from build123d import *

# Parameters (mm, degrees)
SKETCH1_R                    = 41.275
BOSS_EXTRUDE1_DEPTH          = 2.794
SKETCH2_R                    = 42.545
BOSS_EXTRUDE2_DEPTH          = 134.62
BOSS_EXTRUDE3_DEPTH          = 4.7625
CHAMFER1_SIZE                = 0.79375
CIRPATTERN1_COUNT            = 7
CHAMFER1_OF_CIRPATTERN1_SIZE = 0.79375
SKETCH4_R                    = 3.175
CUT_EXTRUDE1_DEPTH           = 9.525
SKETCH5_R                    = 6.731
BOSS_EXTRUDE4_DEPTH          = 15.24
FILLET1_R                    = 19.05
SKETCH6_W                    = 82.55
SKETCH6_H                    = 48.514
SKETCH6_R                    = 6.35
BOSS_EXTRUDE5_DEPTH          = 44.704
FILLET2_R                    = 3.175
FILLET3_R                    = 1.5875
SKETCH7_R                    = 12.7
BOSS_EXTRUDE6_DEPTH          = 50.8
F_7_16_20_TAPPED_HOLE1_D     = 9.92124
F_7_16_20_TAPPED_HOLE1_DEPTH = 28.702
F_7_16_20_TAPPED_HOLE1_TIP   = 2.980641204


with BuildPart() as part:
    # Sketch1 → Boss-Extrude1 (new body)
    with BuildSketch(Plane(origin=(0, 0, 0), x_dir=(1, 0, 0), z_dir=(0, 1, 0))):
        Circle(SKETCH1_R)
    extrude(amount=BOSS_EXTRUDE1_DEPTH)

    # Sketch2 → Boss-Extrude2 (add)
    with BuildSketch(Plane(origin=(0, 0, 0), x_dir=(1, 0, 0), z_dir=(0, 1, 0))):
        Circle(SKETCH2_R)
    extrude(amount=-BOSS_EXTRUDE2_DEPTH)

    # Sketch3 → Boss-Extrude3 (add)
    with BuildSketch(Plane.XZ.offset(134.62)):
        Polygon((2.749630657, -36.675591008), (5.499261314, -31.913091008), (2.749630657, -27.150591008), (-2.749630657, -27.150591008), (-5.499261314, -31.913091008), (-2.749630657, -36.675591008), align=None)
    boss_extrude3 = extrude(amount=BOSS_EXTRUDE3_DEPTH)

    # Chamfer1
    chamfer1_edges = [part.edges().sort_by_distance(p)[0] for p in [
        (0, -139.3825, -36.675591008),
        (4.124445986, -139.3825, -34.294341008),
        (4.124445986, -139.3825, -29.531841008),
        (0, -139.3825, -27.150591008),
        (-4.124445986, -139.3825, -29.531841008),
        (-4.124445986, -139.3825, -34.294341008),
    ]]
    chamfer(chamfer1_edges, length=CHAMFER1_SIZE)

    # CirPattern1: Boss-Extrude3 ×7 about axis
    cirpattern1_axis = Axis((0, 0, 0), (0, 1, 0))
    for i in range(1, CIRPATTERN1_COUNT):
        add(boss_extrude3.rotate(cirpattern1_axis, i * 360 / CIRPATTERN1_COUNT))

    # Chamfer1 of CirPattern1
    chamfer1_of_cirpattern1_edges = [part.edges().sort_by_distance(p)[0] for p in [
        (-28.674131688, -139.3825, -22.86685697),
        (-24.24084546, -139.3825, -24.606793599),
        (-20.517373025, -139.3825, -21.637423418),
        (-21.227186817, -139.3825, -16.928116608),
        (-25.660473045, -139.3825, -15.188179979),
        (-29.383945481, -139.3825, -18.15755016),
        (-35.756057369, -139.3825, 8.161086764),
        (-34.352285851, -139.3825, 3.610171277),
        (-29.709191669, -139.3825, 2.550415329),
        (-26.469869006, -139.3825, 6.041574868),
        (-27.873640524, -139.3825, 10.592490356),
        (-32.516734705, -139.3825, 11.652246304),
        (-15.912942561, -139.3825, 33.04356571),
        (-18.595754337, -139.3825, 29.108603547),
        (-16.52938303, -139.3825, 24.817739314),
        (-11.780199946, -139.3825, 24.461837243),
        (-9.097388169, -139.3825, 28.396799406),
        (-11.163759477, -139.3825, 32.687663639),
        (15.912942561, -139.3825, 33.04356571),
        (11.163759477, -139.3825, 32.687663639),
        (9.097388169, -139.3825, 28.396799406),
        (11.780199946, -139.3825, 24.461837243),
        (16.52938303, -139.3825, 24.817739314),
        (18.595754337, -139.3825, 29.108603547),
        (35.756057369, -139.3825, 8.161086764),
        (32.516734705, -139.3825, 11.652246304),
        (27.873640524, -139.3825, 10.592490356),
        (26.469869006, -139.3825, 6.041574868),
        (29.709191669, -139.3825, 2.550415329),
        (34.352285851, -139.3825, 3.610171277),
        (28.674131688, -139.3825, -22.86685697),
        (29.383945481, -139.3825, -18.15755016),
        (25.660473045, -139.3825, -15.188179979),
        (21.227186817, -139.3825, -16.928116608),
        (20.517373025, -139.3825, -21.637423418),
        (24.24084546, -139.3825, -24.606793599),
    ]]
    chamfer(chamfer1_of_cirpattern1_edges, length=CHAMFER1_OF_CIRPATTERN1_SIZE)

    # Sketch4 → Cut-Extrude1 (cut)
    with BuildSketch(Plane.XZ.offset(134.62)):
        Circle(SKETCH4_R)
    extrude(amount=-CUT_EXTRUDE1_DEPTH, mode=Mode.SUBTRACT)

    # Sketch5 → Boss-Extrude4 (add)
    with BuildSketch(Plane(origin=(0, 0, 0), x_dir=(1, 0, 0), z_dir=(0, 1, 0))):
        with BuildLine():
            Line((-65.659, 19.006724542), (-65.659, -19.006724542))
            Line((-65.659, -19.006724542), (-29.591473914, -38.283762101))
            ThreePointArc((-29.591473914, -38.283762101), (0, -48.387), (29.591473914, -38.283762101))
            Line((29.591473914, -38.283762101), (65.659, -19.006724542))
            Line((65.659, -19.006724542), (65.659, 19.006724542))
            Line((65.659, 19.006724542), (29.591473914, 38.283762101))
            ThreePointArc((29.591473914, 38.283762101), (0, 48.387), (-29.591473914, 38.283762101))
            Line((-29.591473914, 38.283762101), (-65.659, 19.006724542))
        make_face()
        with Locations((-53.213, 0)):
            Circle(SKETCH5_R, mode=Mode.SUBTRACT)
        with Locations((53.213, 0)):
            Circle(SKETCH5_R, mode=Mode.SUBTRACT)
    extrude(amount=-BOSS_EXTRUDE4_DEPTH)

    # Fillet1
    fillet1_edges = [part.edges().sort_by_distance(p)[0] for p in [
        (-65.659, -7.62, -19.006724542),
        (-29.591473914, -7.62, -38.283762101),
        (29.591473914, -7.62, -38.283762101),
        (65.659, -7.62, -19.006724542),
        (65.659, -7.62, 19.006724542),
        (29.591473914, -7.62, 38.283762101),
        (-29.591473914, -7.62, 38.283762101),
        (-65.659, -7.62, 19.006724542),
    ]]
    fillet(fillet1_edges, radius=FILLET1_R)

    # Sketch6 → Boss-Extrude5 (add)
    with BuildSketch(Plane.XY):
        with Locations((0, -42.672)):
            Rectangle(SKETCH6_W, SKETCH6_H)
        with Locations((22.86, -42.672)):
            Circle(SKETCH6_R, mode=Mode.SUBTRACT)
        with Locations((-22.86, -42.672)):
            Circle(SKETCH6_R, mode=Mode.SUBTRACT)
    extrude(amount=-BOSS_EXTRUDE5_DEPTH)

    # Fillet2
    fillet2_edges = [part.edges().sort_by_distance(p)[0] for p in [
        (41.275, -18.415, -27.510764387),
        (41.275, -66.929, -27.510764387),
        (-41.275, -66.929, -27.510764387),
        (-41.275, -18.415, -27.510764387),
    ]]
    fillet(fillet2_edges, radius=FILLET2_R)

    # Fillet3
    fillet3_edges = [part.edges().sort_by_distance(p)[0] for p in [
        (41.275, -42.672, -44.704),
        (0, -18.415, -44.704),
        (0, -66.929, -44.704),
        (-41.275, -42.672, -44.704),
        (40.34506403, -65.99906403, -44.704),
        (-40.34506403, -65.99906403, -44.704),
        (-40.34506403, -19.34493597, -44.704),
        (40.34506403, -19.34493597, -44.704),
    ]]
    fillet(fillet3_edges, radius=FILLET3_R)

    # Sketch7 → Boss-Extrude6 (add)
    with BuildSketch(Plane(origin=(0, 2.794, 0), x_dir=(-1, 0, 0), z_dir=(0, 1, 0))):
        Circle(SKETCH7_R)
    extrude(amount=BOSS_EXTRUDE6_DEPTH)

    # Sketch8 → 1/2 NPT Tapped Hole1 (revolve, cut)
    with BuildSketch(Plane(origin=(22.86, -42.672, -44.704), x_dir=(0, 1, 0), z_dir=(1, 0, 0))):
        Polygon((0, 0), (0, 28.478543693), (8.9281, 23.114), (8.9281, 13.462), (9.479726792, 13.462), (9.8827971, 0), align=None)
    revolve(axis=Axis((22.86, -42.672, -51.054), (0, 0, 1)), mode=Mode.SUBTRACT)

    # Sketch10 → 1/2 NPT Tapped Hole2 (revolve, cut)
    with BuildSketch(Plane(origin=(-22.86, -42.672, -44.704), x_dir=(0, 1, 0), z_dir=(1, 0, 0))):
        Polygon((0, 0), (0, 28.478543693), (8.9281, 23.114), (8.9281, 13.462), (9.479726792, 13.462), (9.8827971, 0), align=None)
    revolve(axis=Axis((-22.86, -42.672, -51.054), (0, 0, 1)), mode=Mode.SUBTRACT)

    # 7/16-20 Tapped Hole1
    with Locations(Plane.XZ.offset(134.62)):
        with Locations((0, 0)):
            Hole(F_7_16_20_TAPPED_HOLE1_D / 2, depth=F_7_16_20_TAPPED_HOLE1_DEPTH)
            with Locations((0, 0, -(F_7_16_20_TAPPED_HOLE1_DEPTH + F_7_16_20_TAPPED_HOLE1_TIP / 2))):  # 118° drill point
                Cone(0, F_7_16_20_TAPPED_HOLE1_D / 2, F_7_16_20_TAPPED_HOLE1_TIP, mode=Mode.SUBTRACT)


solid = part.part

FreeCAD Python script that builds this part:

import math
import FreeCAD as App
import Part
import Sketcher
from FreeCAD import Vector
Q = App.Units.Quantity


def edges_at(feature, points):
    """Names of the edges that pass closest to the given points."""
    edges = feature.Shape.Edges
    near = lambda p: min(range(len(edges)), key=lambda i: edges[i].distToShape(Part.Vertex(*p))[0])
    return sorted({f"Edge{near(p) + 1}" for p in points})


def add_polygon(sketch, points):
    """Adds a closed chain of lines whose ends are joined by coincident constraints."""
    first, n = sketch.GeometryCount, len(points)
    for a, b in zip(points, points[1:] + points[:1]):
        sketch.addGeometry(Part.LineSegment(App.Vector(*a, 0), App.Vector(*b, 0)), False)
    for i in range(n):
        sketch.addConstraint(Sketcher.Constraint("Coincident", first + i, 2, first + (i + 1) % n, 1))

doc = App.newDocument("Part")
body = doc.addObject("PartDesign::Body", "Body")

sketch1 = body.newObject("Sketcher::SketchObject", "Sketch")
sketch1.AttachmentSupport = (doc.getObject("XZ_Plane"), [""])
sketch1.MapMode = "FlatFace"
sketch1.addGeometry(Part.Circle(Vector(0, 0, 0), Vector(0, 0, 1), 41), False)
sketch1.addConstraint(Sketcher.Constraint("Coincident", 0, 3, -1, 1))
sketch1.addConstraint(Sketcher.Constraint("Diameter", 0, Q("3.25 in")))
pad1 = body.newObject("PartDesign::Pad", "Pad")
pad1.Profile = sketch1
pad1.Length = Q("0.11 in")
pad1.Reversed = True

sketch2 = body.newObject("Sketcher::SketchObject", "Sketch001")
sketch2.AttachmentSupport = (doc.getObject("XZ_Plane"), [""])
sketch2.MapMode = "FlatFace"
sketch2.addGeometry(Part.Circle(Vector(0, 0, 0), Vector(0, 0, 1), 43), False)
sketch2.addConstraint(Sketcher.Constraint("Coincident", 0, 3, -1, 1))
sketch2.addConstraint(Sketcher.Constraint("Diameter", 0, Q("3.35 in")))
pad2 = body.newObject("PartDesign::Pad", "Pad001")
pad2.Profile = sketch2
pad2.Length = Q("5.3 in")

sketch3 = body.newObject("Sketcher::SketchObject", "Sketch002")
sketch3.AttachmentSupport = (doc.getObject("XZ_Plane"), [""])
sketch3.MapMode = "FlatFace"
sketch3.AttachmentOffset = App.Placement(Vector(0, 0, 5.3 * 25.4), App.Rotation())
add_polygon(sketch3, [(3, -37), (5, -32), (3, -27), (-3, -27), (-5, -32), (-3, -37)])
sketch3.addConstraint(Sketcher.Constraint("Horizontal", 2))
sketch3.addConstraint(Sketcher.Constraint("Horizontal", 5))
sketch3.addConstraint(Sketcher.Constraint("Symmetric", 0, 2, 3, 2, -2))
sketch3.addConstraint(Sketcher.Constraint("Parallel", 0, 3))
sketch3.addConstraint(Sketcher.Constraint("Parallel", 1, 4))
sketch3.addConstraint(Sketcher.Constraint("Vertical", 2, 2, 4, 2))
sketch3.addConstraint(Sketcher.Constraint("Vertical", 1, 2, 5, 2))
sketch3.addConstraint(Sketcher.Constraint("Angle", 0, Q("60 deg")))
sketch3.addConstraint(Sketcher.Constraint("DistanceY", 0, 2, 1, 2, Q("0.1875 in")))
sketch3.addConstraint(Sketcher.Constraint("DistanceX", 2, 2, 2, 1, 5.499261))
sketch3.addConstraint(Sketcher.Constraint("DistanceY", 0, 2, -1, 1, 31.913091))
pad3 = body.newObject("PartDesign::Pad", "Pad002")
pad3.Profile = sketch3
pad3.Length = Q("0.1875 in")
doc.recompute()

chamfer = body.newObject("PartDesign::Chamfer", "Chamfer")
chamfer.Base = (pad3, edges_at(pad3, [
    (0, -139.382, -36.676),
    (4.124, -139.382, -34.294),
    (4.124, -139.382, -29.532),
    (0, -139.382, -27.151),
    (-4.124, -139.382, -29.532),
    (-4.124, -139.382, -34.294),
]))
chamfer.Size = Q("0.03125 in")
doc.recompute()

polarpattern = body.newObject("PartDesign::PolarPattern", "PolarPattern")
polarpattern.Originals = [pad3]
polarpattern.Axis = (doc.getObject("Y_Axis"), [""])
polarpattern.Angle = 360
polarpattern.Occurrences = 7
body.Tip = polarpattern
doc.recompute()

chamfer2 = body.newObject("PartDesign::Chamfer", "Chamfer001")
chamfer2.Base = (polarpattern, edges_at(polarpattern, [
    (-28.674, -139.382, -22.867),
    (-24.241, -139.382, -24.607),
    (-20.517, -139.382, -21.637),
    (-21.227, -139.382, -16.928),
    (-25.66, -139.382, -15.188),
    (-29.384, -139.382, -18.158),
    (-35.756, -139.382, 8.161),
    (-34.352, -139.382, 3.61),
    (-29.709, -139.382, 2.55),
    (-26.47, -139.382, 6.042),
    (-27.874, -139.382, 10.592),
    (-32.517, -139.382, 11.652),
    (-15.913, -139.382, 33.044),
    (-18.596, -139.382, 29.109),
    (-16.529, -139.382, 24.818),
    (-11.78, -139.382, 24.462),
    (-9.097, -139.382, 28.397),
    (-11.164, -139.382, 32.688),
    (15.913, -139.382, 33.044),
    (11.164, -139.382, 32.688),
    (9.097, -139.382, 28.397),
    (11.78, -139.382, 24.462),
    (16.529, -139.382, 24.818),
    (18.596, -139.382, 29.109),
    (35.756, -139.382, 8.161),
    (32.517, -139.382, 11.652),
    (27.874, -139.382, 10.592),
    (26.47, -139.382, 6.042),
    (29.709, -139.382, 2.55),
    (34.352, -139.382, 3.61),
    (28.674, -139.382, -22.867),
    (29.384, -139.382, -18.158),
    (25.66, -139.382, -15.188),
    (21.227, -139.382, -16.928),
    (20.517, -139.382, -21.637),
    (24.241, -139.382, -24.607),
]))
chamfer2.Size = Q("0.03125 in")

sketch4 = body.newObject("Sketcher::SketchObject", "Sketch003")
sketch4.AttachmentSupport = (doc.getObject("XZ_Plane"), [""])
sketch4.MapMode = "FlatFace"
sketch4.AttachmentOffset = App.Placement(Vector(0, 0, 5.3 * 25.4), App.Rotation())
sketch4.addGeometry(Part.Circle(Vector(0, 0, 0), Vector(0, 0, 1), 3.2), False)
sketch4.addConstraint(Sketcher.Constraint("Coincident", 0, 3, -1, 1))
sketch4.addConstraint(Sketcher.Constraint("Diameter", 0, Q("0.25 in")))
pocket1 = body.newObject("PartDesign::Pocket", "Pocket")
pocket1.Profile = sketch4
pocket1.Length = Q("0.375 in")

sketch5 = body.newObject("Sketcher::SketchObject", "Sketch004")
sketch5.AttachmentSupport = (doc.getObject("XZ_Plane"), [""])
sketch5.MapMode = "FlatFace"
sketch5.addGeometry(Part.LineSegment(Vector(-66, -19, 0), Vector(-66, 19, 0)), False)
sketch5.addGeometry(Part.LineSegment(Vector(-66, 19, 0), Vector(-30, 38, 0)), False)
sketch5.addGeometry(Part.ArcOfCircle(Part.Circle(Vector(0, 0, 0), Vector(0, 0, 1), 48), math.radians(52), math.radians(128)), False)
sketch5.addGeometry(Part.LineSegment(Vector(30, 38, 0), Vector(66, 19, 0)), False)
sketch5.addGeometry(Part.LineSegment(Vector(66, 19, 0), Vector(66, -19, 0)), False)
sketch5.addGeometry(Part.LineSegment(Vector(66, -19, 0), Vector(30, -38, 0)), False)
sketch5.addGeometry(Part.ArcOfCircle(Part.Circle(Vector(0, 0, 0), Vector(0, 0, 1), 48), math.radians(-128), math.radians(-52)), False)
sketch5.addGeometry(Part.LineSegment(Vector(-30, -38, 0), Vector(-66, -19, 0)), False)
sketch5.addGeometry(Part.Circle(Vector(-53, 0, 0), Vector(0, 0, 1), 7), False)
sketch5.addGeometry(Part.Circle(Vector(53, 0, 0), Vector(0, 0, 1), 7), False)
sketch5.addConstraint(Sketcher.Constraint("Coincident", 0, 2, 1, 1))
sketch5.addConstraint(Sketcher.Constraint("Coincident", 1, 2, 2, 2))
sketch5.addConstraint(Sketcher.Constraint("Coincident", 2, 1, 3, 1))
sketch5.addConstraint(Sketcher.Constraint("Coincident", 3, 2, 4, 1))
sketch5.addConstraint(Sketcher.Constraint("Coincident", 4, 2, 5, 1))
sketch5.addConstraint(Sketcher.Constraint("Coincident", 5, 2, 6, 2))
sketch5.addConstraint(Sketcher.Constraint("Coincident", 6, 1, 7, 1))
sketch5.addConstraint(Sketcher.Constraint("Coincident", 7, 2, 0, 1))
sketch5.addConstraint(Sketcher.Constraint("Vertical", 0))
sketch5.addConstraint(Sketcher.Constraint("Vertical", 4))
sketch5.addConstraint(Sketcher.Constraint("Coincident", 2, 3, -1, 1))
sketch5.addConstraint(Sketcher.Constraint("Coincident", 6, 3, -1, 1))
sketch5.addConstraint(Sketcher.Constraint("Equal", 2, 6))
sketch5.addConstraint(Sketcher.Constraint("Equal", 8, 9))
sketch5.addConstraint(Sketcher.Constraint("Symmetric", 8, 3, 9, 3, -1, 1))
sketch5.addConstraint(Sketcher.Constraint("Symmetric", 0, 2, 4, 2, -1, 1))
sketch5.addConstraint(Sketcher.Constraint("PointOnObject", 8, 3, -1))
sketch5.addConstraint(Sketcher.Constraint("Parallel", 1, 5))
sketch5.addConstraint(Sketcher.Constraint("Parallel", 3, 7))
sketch5.addConstraint(Sketcher.Constraint("Horizontal", 1, 2, 2, 1))
sketch5.addConstraint(Sketcher.Constraint("Horizontal", 0, 2, 3, 2))
sketch5.addConstraint(Sketcher.Constraint("Horizontal", 5, 2, 6, 1))
sketch5.addConstraint(Sketcher.Constraint("Diameter", 8, Q("0.53 in")))
sketch5.addConstraint(Sketcher.Constraint("Radius", 2, Q("1.905 in")))
sketch5.addConstraint(Sketcher.Constraint("DistanceX", 8, 3, 9, 3, Q("4.19 in")))
sketch5.addConstraint(Sketcher.Constraint("DistanceX", 0, 2, 8, 3, Q("0.49 in")))
sketch5.addConstraint(Sketcher.Constraint("DistanceY", 0, 1, 0, 2, 38.013449))
sketch5.addConstraint(Sketcher.Constraint("Distance", 1, 40.895851))
pad4 = body.newObject("PartDesign::Pad", "Pad003")
pad4.Profile = sketch5
pad4.Length = Q("0.6 in")
doc.recompute()

fillet = body.newObject("PartDesign::Fillet", "Fillet")
fillet.Base = (pad4, edges_at(pad4, [
    (-65.659, -7.62, -19.007),
    (-29.591, -7.62, -38.284),
    (29.591, -7.62, -38.284),
    (65.659, -7.62, -19.007),
    (65.659, -7.62, 19.007),
    (29.591, -7.62, 38.284),
    (-29.591, -7.62, 38.284),
    (-65.659, -7.62, 19.007),
]))
fillet.Radius = Q("0.75 in")

sketch6 = body.newObject("Sketcher::SketchObject", "Sketch005")
sketch6.AttachmentSupport = (doc.getObject("XY_Plane"), [""])
sketch6.MapMode = "FlatFace"
add_polygon(sketch6, [(-41, -18), (-41, -67), (41, -67), (41, -18)])
sketch6.addGeometry(Part.Circle(Vector(-23, -43, 0), Vector(0, 0, 1), 6), False)
sketch6.addGeometry(Part.Circle(Vector(23, -43, 0), Vector(0, 0, 1), 6), False)
sketch6.addConstraint(Sketcher.Constraint("Vertical", 0))
sketch6.addConstraint(Sketcher.Constraint("Horizontal", 1))
sketch6.addConstraint(Sketcher.Constraint("Vertical", 2))
sketch6.addConstraint(Sketcher.Constraint("Horizontal", 3))
sketch6.addConstraint(Sketcher.Constraint("Equal", 4, 5))
sketch6.addConstraint(Sketcher.Constraint("Symmetric", 4, 3, 5, 3, -2))
sketch6.addConstraint(Sketcher.Constraint("Diameter", 4, Q("0.5 in")))
sketch6.addConstraint(Sketcher.Constraint("DistanceX", 1, 1, 1, 2, Q("3.25 in")))
sketch6.addConstraint(Sketcher.Constraint("DistanceY", 0, 2, 0, 1, Q("1.91 in")))
sketch6.addConstraint(Sketcher.Constraint("DistanceX", 4, 3, -1, 1, Q("0.9 in")))
sketch6.addConstraint(Sketcher.Constraint("DistanceY", 4, 3, -1, 1, Q("1.68 in")))
sketch6.addConstraint(Sketcher.Constraint("DistanceX", 0, 2, -1, 1, Q("1.625 in")))
sketch6.addConstraint(Sketcher.Constraint("DistanceY", 0, 2, -1, 1, Q("2.635 in")))
pad5 = body.newObject("PartDesign::Pad", "Pad004")
pad5.Profile = sketch6
pad5.Length = Q("1.76 in")
pad5.Reversed = True
doc.recompute()

fillet2 = body.newObject("PartDesign::Fillet", "Fillet001")
fillet2.Base = (pad5, edges_at(pad5, [
    (41.275, -18.415, -27.511),
    (41.275, -66.929, -27.511),
    (-41.275, -66.929, -27.511),
    (-41.275, -18.415, -27.511),
]))
fillet2.Radius = Q("0.125 in")
doc.recompute()

fillet3 = body.newObject("PartDesign::Fillet", "Fillet002")
fillet3.Base = (fillet2, edges_at(fillet2, [
    (41.275, -42.672, -44.704),
    (0, -18.415, -44.704),
    (0, -66.929, -44.704),
    (-41.275, -42.672, -44.704),
    (40.345, -65.999, -44.704),
    (-40.345, -65.999, -44.704),
    (-40.345, -19.345, -44.704),
    (40.345, -19.345, -44.704),
]))
fillet3.Radius = Q("0.0625 in")

sketch7 = body.newObject("Sketcher::SketchObject", "Sketch006")
sketch7.AttachmentSupport = (doc.getObject("XZ_Plane"), [""])
sketch7.MapMode = "FlatFace"
sketch7.AttachmentOffset = App.Placement(Vector(0, 0, -0.11 * 25.4), App.Rotation())
sketch7.addGeometry(Part.Circle(Vector(0, 0, 0), Vector(0, 0, 1), 13), False)
sketch7.addConstraint(Sketcher.Constraint("Coincident", 0, 3, -1, 1))
sketch7.addConstraint(Sketcher.Constraint("Diameter", 0, Q("1 in")))
pad6 = body.newObject("PartDesign::Pad", "Pad005")
pad6.Profile = sketch7
pad6.Length = Q("2 in")
pad6.Reversed = True

sketch8 = body.newObject("Sketcher::SketchObject", "Sketch007")
sketch8.AttachmentSupport = (doc.getObject("YZ_Plane"), [""])
sketch8.MapMode = "FlatFace"
sketch8.AttachmentOffset = App.Placement(Vector(0, 0, 0.9 * 25.4), App.Rotation())
add_polygon(sketch8, [(-42.7, -16.2), (-42.7, -44.7), (-32.8, -44.7), (-33.2, -31.2), (-33.7, -31.2), (-33.7, -21.6)])
sketch8.addGeometry(Part.LineSegment(Vector(-42.7, -44.7, 0), Vector(-42.7, -16.2, 0)), True)
sketch8.addConstraint(Sketcher.Constraint("Vertical", 0))
sketch8.addConstraint(Sketcher.Constraint("Horizontal", 1))
sketch8.addConstraint(Sketcher.Constraint("Horizontal", 3))
sketch8.addConstraint(Sketcher.Constraint("Vertical", 4))
sketch8.addConstraint(Sketcher.Constraint("Vertical", 6))
sketch8.addConstraint(Sketcher.Constraint("Coincident", 6, 1, 0, 2))
sketch8.addConstraint(Sketcher.Constraint("Equal", 0, 6))
sketch8.addConstraint(Sketcher.Constraint("Angle", 5, Q("149 deg")))
sketch8.addConstraint(Sketcher.Constraint("DistanceY", 4, 1, 4, 2, Q("0.38 in")))
sketch8.addConstraint(Sketcher.Constraint("DistanceX", 0, 2, -1, 1, Q("1.68 in")))
sketch8.addConstraint(Sketcher.Constraint("DistanceY", 0, 2, -1, 1, Q("1.76 in")))
sketch8.addConstraint(Sketcher.Constraint("DistanceY", 2, 2, -1, 1, Q("1.23 in")))
sketch8.addConstraint(Sketcher.Constraint("DistanceX", 3, 2, -1, 1, Q("1.3285 in")))
sketch8.addConstraint(Sketcher.Constraint("DistanceX", 1, 1, 1, 2, 9.882797))
sketch8.addConstraint(Sketcher.Constraint("DistanceX", 3, 2, 3, 1, 0.551627))
groove = body.newObject("PartDesign::Groove", "Groove")
groove.Profile = sketch8
groove.ReferenceAxis = (sketch8, ["Axis0"])
groove.Angle = 360

sketch9 = body.newObject("Sketcher::SketchObject", "Sketch008")
sketch9.AttachmentSupport = (doc.getObject("YZ_Plane"), [""])
sketch9.MapMode = "FlatFace"
sketch9.AttachmentOffset = App.Placement(Vector(0, 0, -0.9 * 25.4), App.Rotation())
add_polygon(sketch9, [(-42.7, -16.2), (-42.7, -44.7), (-32.8, -44.7), (-33.2, -31.2), (-33.7, -31.2), (-33.7, -21.6)])
sketch9.addGeometry(Part.LineSegment(Vector(-42.7, -44.7, 0), Vector(-42.7, -16.2, 0)), True)
sketch9.addConstraint(Sketcher.Constraint("Vertical", 0))
sketch9.addConstraint(Sketcher.Constraint("Horizontal", 1))
sketch9.addConstraint(Sketcher.Constraint("Horizontal", 3))
sketch9.addConstraint(Sketcher.Constraint("Vertical", 4))
sketch9.addConstraint(Sketcher.Constraint("Vertical", 6))
sketch9.addConstraint(Sketcher.Constraint("Coincident", 6, 1, 0, 2))
sketch9.addConstraint(Sketcher.Constraint("Equal", 0, 6))
sketch9.addConstraint(Sketcher.Constraint("Angle", 5, Q("149 deg")))
sketch9.addConstraint(Sketcher.Constraint("DistanceY", 4, 1, 4, 2, Q("0.38 in")))
sketch9.addConstraint(Sketcher.Constraint("DistanceX", 0, 2, -1, 1, Q("1.68 in")))
sketch9.addConstraint(Sketcher.Constraint("DistanceY", 0, 2, -1, 1, Q("1.76 in")))
sketch9.addConstraint(Sketcher.Constraint("DistanceY", 2, 2, -1, 1, Q("1.23 in")))
sketch9.addConstraint(Sketcher.Constraint("DistanceX", 3, 2, -1, 1, Q("1.3285 in")))
sketch9.addConstraint(Sketcher.Constraint("DistanceX", 1, 1, 1, 2, 9.882797))
sketch9.addConstraint(Sketcher.Constraint("DistanceX", 3, 2, 3, 1, 0.551627))
groove2 = body.newObject("PartDesign::Groove", "Groove001")
groove2.Profile = sketch9
groove2.ReferenceAxis = (sketch9, ["Axis0"])
groove2.Angle = 360

sketch10 = body.newObject("Sketcher::SketchObject", "Sketch009")
sketch10.AttachmentSupport = (doc.getObject("XZ_Plane"), [""])
sketch10.MapMode = "FlatFace"
sketch10.AttachmentOffset = App.Placement(Vector(0, 0, 5.3 * 25.4), App.Rotation())
sketch10.addGeometry(Part.Circle(Vector(0, 0, 0), Vector(0, 0, 1), 5), False)
sketch10.addConstraint(Sketcher.Constraint("Coincident", 0, 3, -1, 1))
sketch10.addConstraint(Sketcher.Constraint("Diameter", 0, Q("0.3906 in")))
doc.recompute()
hole = body.newObject("PartDesign::Hole", "Hole")
hole.Profile = sketch10
hole.ThreadType = "None"
hole.Diameter = Q("0.3906 in")
hole.DepthType = "Dimension"
hole.Depth = Q("1.13 in")
hole.DrillPoint = "Angled"
hole.DrillPointAngle = 118

doc.recompute()
